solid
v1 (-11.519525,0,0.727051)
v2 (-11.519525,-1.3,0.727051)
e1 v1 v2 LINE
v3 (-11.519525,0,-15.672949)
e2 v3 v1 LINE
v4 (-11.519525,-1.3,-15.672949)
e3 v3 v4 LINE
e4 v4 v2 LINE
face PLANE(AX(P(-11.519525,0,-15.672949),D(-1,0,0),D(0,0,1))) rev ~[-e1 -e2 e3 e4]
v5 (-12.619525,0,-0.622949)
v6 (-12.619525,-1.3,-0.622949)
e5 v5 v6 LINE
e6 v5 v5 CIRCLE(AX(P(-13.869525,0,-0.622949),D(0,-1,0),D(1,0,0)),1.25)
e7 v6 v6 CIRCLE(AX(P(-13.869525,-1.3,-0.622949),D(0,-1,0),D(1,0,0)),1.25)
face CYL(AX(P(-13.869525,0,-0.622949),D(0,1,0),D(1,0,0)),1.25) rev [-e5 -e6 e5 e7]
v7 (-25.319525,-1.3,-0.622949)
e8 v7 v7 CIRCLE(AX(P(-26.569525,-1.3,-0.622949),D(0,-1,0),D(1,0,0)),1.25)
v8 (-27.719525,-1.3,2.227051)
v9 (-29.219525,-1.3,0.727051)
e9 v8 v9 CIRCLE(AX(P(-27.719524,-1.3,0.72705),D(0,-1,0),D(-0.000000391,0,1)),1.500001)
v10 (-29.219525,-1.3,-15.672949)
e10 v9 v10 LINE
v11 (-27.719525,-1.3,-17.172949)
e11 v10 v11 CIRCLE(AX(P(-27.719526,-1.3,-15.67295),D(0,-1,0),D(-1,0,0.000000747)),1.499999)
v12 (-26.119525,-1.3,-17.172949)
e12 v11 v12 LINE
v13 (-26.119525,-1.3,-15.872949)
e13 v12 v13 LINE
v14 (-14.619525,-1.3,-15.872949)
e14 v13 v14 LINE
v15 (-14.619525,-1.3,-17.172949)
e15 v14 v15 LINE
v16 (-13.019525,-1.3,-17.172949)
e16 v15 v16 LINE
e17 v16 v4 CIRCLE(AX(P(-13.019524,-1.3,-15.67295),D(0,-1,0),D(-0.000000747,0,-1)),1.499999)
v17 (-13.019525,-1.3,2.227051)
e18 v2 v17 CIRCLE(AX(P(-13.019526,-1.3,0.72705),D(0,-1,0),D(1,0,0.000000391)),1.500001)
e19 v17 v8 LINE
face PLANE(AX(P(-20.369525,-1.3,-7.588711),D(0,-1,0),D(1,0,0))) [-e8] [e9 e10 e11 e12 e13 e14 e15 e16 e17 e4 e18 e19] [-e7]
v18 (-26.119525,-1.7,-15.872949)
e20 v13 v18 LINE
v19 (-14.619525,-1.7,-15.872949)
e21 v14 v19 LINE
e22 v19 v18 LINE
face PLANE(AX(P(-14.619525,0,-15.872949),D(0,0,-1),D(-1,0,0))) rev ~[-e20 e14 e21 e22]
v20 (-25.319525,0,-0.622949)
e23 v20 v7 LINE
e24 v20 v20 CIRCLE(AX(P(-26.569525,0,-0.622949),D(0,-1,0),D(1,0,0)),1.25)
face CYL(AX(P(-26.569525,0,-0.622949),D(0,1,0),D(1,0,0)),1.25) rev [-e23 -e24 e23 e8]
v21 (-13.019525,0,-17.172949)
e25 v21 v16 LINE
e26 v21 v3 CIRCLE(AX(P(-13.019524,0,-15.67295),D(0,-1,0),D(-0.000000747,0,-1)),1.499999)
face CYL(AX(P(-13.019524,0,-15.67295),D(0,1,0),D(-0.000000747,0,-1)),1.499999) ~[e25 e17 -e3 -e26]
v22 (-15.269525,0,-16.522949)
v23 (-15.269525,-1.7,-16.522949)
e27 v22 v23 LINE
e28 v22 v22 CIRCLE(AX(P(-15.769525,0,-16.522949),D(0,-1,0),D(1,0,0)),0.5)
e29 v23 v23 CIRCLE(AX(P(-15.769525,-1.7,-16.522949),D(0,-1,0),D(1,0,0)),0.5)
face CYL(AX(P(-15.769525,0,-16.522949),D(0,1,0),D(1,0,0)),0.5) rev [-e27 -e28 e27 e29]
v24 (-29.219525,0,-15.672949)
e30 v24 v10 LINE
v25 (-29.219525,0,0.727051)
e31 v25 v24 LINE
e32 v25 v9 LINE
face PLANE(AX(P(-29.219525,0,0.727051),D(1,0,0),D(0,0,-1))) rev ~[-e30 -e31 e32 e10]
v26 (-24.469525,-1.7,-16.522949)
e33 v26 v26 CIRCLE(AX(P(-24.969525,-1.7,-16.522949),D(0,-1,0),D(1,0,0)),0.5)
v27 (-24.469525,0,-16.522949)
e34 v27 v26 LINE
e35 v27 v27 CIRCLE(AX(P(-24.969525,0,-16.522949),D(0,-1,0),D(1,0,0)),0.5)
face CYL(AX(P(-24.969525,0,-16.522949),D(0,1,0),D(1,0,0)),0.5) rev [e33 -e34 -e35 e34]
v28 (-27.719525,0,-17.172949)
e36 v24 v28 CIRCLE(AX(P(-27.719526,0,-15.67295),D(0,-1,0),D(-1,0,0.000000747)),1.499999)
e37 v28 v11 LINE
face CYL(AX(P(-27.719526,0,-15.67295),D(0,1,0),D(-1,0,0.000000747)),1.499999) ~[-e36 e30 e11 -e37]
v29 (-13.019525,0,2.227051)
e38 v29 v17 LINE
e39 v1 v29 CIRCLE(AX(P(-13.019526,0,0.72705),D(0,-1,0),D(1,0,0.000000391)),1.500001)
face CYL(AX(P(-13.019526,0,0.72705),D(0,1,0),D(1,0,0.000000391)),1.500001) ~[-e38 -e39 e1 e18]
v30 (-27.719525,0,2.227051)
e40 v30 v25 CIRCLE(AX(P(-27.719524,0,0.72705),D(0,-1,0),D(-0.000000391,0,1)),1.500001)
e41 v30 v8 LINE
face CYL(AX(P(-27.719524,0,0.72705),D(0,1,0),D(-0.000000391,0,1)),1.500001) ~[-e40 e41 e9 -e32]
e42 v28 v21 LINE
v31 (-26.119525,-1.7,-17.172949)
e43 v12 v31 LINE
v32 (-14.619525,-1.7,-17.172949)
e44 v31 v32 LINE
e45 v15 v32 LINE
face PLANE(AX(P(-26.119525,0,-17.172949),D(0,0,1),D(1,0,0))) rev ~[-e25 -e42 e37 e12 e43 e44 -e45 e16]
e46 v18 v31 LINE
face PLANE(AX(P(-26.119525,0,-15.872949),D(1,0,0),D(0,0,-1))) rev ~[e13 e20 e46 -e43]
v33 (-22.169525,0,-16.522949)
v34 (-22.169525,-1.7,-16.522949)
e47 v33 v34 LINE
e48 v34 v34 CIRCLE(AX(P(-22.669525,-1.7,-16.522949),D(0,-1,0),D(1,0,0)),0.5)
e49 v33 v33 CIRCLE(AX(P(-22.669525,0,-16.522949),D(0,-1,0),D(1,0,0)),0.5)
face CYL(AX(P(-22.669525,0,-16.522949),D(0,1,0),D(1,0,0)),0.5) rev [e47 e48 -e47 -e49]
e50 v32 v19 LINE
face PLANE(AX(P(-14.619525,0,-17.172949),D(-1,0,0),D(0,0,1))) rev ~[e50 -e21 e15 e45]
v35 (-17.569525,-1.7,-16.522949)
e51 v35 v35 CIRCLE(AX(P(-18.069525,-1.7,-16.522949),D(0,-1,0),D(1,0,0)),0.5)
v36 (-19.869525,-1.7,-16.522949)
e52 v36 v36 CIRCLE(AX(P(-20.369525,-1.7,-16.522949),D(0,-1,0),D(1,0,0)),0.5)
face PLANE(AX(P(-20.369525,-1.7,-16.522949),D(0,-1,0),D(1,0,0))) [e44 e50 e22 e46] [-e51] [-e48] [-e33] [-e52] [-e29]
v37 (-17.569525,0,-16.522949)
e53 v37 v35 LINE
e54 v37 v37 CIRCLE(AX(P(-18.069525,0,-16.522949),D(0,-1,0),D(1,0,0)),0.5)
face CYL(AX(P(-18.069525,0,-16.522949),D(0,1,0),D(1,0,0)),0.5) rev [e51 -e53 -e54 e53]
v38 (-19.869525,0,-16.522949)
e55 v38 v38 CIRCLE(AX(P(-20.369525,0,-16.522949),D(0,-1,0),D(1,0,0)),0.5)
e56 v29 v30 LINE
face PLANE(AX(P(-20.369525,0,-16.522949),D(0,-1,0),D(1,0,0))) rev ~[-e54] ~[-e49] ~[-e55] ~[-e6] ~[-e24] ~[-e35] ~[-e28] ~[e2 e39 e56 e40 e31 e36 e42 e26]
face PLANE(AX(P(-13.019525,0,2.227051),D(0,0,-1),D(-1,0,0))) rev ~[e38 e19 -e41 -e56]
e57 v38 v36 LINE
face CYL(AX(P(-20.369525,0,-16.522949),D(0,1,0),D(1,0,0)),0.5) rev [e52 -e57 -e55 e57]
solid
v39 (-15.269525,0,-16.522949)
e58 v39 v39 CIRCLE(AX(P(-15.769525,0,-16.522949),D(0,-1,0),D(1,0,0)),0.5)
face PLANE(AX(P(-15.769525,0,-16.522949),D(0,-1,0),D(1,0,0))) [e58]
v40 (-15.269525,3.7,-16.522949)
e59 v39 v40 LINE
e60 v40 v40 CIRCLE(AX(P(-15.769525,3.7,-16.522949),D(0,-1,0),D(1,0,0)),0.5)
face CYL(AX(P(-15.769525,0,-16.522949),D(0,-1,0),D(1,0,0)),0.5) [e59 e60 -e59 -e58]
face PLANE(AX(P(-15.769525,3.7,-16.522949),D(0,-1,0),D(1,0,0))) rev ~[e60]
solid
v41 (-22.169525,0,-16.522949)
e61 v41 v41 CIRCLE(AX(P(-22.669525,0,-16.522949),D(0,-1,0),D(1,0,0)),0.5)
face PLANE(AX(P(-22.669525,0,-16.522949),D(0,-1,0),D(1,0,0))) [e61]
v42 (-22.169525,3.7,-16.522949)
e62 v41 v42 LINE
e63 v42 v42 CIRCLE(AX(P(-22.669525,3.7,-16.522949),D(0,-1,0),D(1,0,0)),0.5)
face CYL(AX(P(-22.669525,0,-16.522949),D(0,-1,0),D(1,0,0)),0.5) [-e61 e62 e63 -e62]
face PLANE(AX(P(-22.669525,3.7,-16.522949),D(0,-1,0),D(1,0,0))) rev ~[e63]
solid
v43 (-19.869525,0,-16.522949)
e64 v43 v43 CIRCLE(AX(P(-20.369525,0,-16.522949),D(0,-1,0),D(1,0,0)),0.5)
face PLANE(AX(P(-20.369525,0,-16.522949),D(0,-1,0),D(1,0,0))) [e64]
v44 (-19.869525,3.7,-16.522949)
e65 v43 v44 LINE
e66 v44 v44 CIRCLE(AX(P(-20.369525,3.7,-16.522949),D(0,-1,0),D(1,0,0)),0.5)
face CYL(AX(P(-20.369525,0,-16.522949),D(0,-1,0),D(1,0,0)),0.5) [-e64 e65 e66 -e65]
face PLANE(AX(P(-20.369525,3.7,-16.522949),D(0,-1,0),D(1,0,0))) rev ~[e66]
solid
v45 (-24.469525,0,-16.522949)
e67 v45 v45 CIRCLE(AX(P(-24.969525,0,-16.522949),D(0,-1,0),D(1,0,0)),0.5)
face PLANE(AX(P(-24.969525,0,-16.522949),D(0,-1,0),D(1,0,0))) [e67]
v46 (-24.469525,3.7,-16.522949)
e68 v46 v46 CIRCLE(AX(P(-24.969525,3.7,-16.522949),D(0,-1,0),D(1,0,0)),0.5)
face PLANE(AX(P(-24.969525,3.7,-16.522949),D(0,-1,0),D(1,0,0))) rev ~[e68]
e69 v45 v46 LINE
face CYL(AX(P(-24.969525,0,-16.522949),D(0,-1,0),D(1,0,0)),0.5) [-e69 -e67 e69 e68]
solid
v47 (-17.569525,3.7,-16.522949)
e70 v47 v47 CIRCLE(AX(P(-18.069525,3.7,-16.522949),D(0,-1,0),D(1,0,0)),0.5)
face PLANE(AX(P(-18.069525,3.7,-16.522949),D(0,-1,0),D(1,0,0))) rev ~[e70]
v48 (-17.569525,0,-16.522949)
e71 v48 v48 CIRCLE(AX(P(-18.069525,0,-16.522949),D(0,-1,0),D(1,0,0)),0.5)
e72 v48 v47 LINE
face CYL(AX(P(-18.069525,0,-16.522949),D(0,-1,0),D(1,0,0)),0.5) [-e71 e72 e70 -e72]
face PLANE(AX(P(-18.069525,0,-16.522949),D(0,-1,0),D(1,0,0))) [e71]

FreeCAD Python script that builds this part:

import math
import FreeCAD as App
import Part
import Sketcher

V = App.Vector

doc = App.newDocument("Part")
params = doc.addObject("Spreadsheet::Sheet", "Params")
for row, (alias, value) in enumerate([
    ("sketch1_diameter", "2.5 mm"),
    ("sketch1_radius", "1.499999 mm"),
    ("sketch1_width", "1.6 mm"),
    ("sketch1_width2", "11.5 mm"),
    ("sketch1_height", "1.3 mm"),
    ("pad1_length", "1.3 mm"),
    ("sketch2_diameter", "1 mm"),
    ("sketch2_width", "11.5 mm"),
    ("sketch2_height", "1.3 mm"),
    ("pad2_length", "1.7 mm"),
    ("sketch3_diameter", "1 mm"),
    ("pad3_length", "3.7 mm"),
], start=1):
    params.set(f"A{row}", alias)
    params.set(f"B{row}", "=" + value)
    params.setAlias(f"B{row}", alias)

body = doc.addObject("PartDesign::Body", "Body")

# Sketch on XZ plane
sketch1 = doc.addObject("Sketcher::SketchObject", "Sketch")
body.addObject(sketch1)
sketch1.AttachmentSupport = (doc.XZ_Plane, [""])
sketch1.MapMode = "FlatFace"
sketch1.addGeometry([
    Part.ArcOfCircle(Part.Circle(V(-27.7, -15.7, 0), V(0, 0, 1), 1.5), math.radians(180), math.radians(270)),  # 0
    Part.LineSegment(V(-27.7, -17.2, 0), V(-26.1, -17.2, 0)),  # 1
    Part.LineSegment(V(-26.1, -17.2, 0), V(-26.1, -15.9, 0)),  # 2
    Part.LineSegment(V(-26.1, -15.9, 0), V(-14.6, -15.9, 0)),  # 3
    Part.LineSegment(V(-14.6, -15.9, 0), V(-14.6, -17.2, 0)),  # 4
    Part.LineSegment(V(-14.6, -17.2, 0), V(-13, -17.2, 0)),  # 5
    Part.ArcOfCircle(Part.Circle(V(-13, -15.7, 0), V(0, 0, 1), 1.5), math.radians(-90), math.radians(0)),  # 6
    Part.LineSegment(V(-11.5, -15.7, 0), V(-11.5, 0.7, 0)),  # 7
    Part.ArcOfCircle(Part.Circle(V(-13, 0.7, 0), V(0, 0, 1), 1.5), math.radians(0), math.radians(90)),  # 8
    Part.LineSegment(V(-13, 2.2, 0), V(-27.7, 2.2, 0)),  # 9
    Part.ArcOfCircle(Part.Circle(V(-27.7, 0.7, 0), V(0, 0, 1), 1.5), math.radians(90), math.radians(180)),  # 10
    Part.LineSegment(V(-29.2, 0.7, 0), V(-29.2, -15.7, 0)),  # 11
    Part.Circle(V(-26.6, -0.6, 0), V(0, 0, 1), 1.2),  # 12
    Part.Circle(V(-13.9, -0.6, 0), V(0, 0, 1), 1.2),  # 13
], False)
sketch1.addConstraint([
    Sketcher.Constraint("Tangent", 0, 2, 1, 1),
    Sketcher.Constraint("Coincident", 1, 2, 2, 1),
    Sketcher.Constraint("Coincident", 2, 2, 3, 1),
    Sketcher.Constraint("Coincident", 3, 2, 4, 1),
    Sketcher.Constraint("Coincident", 4, 2, 5, 1),
    Sketcher.Constraint("Tangent", 5, 2, 6, 1),
    Sketcher.Constraint("Tangent", 6, 2, 7, 1),
    Sketcher.Constraint("Tangent", 7, 2, 8, 1),
    Sketcher.Constraint("Tangent", 8, 2, 9, 1),
    Sketcher.Constraint("Tangent", 9, 2, 10, 1),
    Sketcher.Constraint("Tangent", 10, 2, 11, 1),
    Sketcher.Constraint("Tangent", 11, 2, 0, 1),
    Sketcher.Constraint("Horizontal", 1),
    Sketcher.Constraint("Vertical", 2),
    Sketcher.Constraint("Horizontal", 3),
    Sketcher.Constraint("Vertical", 4),
    Sketcher.Constraint("Horizontal", 5),
    Sketcher.Constraint("Vertical", 7),
    Sketcher.Constraint("Horizontal", 9),
    Sketcher.Constraint("Vertical", 11),
    Sketcher.Constraint("Equal", 0, 6),
    Sketcher.Constraint("Equal", 6, 8),
    Sketcher.Constraint("Equal", 8, 10),
    Sketcher.Constraint("Equal", 12, 13),
    Sketcher.Constraint("Horizontal", 0, 3, 6, 3),
    Sketcher.Constraint("Horizontal", 12, 3, 13, 3),
    Sketcher.Constraint("Equal", 1, 5),
    Sketcher.Constraint("Diameter", 12, 2.5),
    Sketcher.Constraint("Radius", 0, 1.499999),
    Sketcher.Constraint("DistanceX", 1, 1, 1, 2, 1.6),
    Sketcher.Constraint("DistanceX", 3, 1, 3, 2, 11.5),
    Sketcher.Constraint("DistanceY", 2, 1, 2, 2, 1.3),
    Sketcher.Constraint("DistanceY", 7, 1, 7, 2, 16.4),
    Sketcher.Constraint("DistanceX", 12, 3, 13, 3, 12.7),
    Sketcher.Constraint("DistanceX", 10, 3, 12, 3, 1.149999),
    Sketcher.Constraint("DistanceY", 12, 3, 10, 3, 1.349999),
    Sketcher.Constraint("DistanceY", 0, 3, -1, 1, 15.67295),
    Sketcher.Constraint("DistanceX", 0, 3, -1, 1, 27.719526),
])
sketch1.setExpression("Constraints[27]", "Params.sketch1_diameter")
sketch1.setExpression("Constraints[28]", "Params.sketch1_radius")
sketch1.setExpression("Constraints[29]", "Params.sketch1_width")
sketch1.setExpression("Constraints[30]", "Params.sketch1_width2")
sketch1.setExpression("Constraints[31]", "Params.sketch1_height")
pad1 = doc.addObject("PartDesign::Pad", "Pad")
body.addObject(pad1)
pad1.Profile = sketch1
pad1.setExpression("Length", "Params.pad1_length")

# Sketch on XZ plane
sketch2 = doc.addObject("Sketcher::SketchObject", "Sketch001")
body.addObject(sketch2)
sketch2.AttachmentSupport = (doc.XZ_Plane, [""])
sketch2.MapMode = "FlatFace"
sketch2.addGeometry([
    Part.LineSegment(V(-26.1, -15.9, 0), V(-26.1, -17.2, 0)),  # 0
    Part.LineSegment(V(-26.1, -17.2, 0), V(-14.6, -17.2, 0)),  # 1
    Part.LineSegment(V(-14.6, -17.2, 0), V(-14.6, -15.9, 0)),  # 2
    Part.LineSegment(V(-14.6, -15.9, 0), V(-26.1, -15.9, 0)),  # 3
    Part.Circle(V(-25, -16.5, 0), V(0, 0, 1), 0.5),  # 4
    Part.Circle(V(-22.7, -16.5, 0), V(0, 0, 1), 0.5),  # 5
    Part.Circle(V(-20.4, -16.5, 0), V(0, 0, 1), 0.5),  # 6
    Part.Circle(V(-18.1, -16.5, 0), V(0, 0, 1), 0.5),  # 7
    Part.Circle(V(-15.8, -16.5, 0), V(0, 0, 1), 0.5),  # 8
], False)
sketch2.addConstraint([
    Sketcher.Constraint("Coincident", 0, 2, 1, 1),
    Sketcher.Constraint("Coincident", 1, 2, 2, 1),
    Sketcher.Constraint("Coincident", 2, 2, 3, 1),
    Sketcher.Constraint("Coincident", 3, 2, 0, 1),
    Sketcher.Constraint("Vertical", 0),
    Sketcher.Constraint("Horizontal", 1),
    Sketcher.Constraint("Vertical", 2),
    Sketcher.Constraint("Horizontal", 3),
    Sketcher.Constraint("Equal", 4, 5),
    Sketcher.Constraint("Equal", 5, 6),
    Sketcher.Constraint("Equal", 6, 7),
    Sketcher.Constraint("Equal", 7, 8),
    Sketcher.Constraint("Horizontal", 4, 3, 5, 3),
    Sketcher.Constraint("Horizontal", 5, 3, 6, 3),
    Sketcher.Constraint("Horizontal", 6, 3, 7, 3),
    Sketcher.Constraint("Horizontal", 7, 3, 8, 3),
    Sketcher.Constraint("Diameter", 4, 1.0),
    Sketcher.Constraint("DistanceX", 1, 1, 1, 2, 11.5),
    Sketcher.Constraint("DistanceY", 0, 2, 0, 1, 1.3),
    Sketcher.Constraint("DistanceX", 4, 3, 5, 3, 2.3),
    Sketcher.Constraint("DistanceX", 5, 3, 6, 3, 2.3),
    Sketcher.Constraint("DistanceX", 6, 3, 7, 3, 2.3),
    Sketcher.Constraint("DistanceX", 7, 3, 8, 3, 2.3),
    Sketcher.Constraint("DistanceX", 0, 2, 4, 3, 1.15),
    Sketcher.Constraint("DistanceY", 0, 2, 4, 3, 0.65),
    Sketcher.Constraint("DistanceY", 4, 3, -1, 1, 16.522949),
    Sketcher.Constraint("DistanceX", 4, 3, -1, 1, 24.969525),
])
sketch2.setExpression("Constraints[16]", "Params.sketch2_diameter")
sketch2.setExpression("Constraints[17]", "Params.sketch2_width")
sketch2.setExpression("Constraints[18]", "Params.sketch2_height")
pad2 = doc.addObject("PartDesign::Pad", "Pad001")
body.addObject(pad2)
pad2.Profile = sketch2
pad2.setExpression("Length", "Params.pad2_length")
body2 = doc.addObject("PartDesign::Body", "Body001")
body2.AllowCompound = True

# Sketch on XZ plane
sketch3 = doc.addObject("Sketcher::SketchObject", "Sketch002")
body2.addObject(sketch3)
sketch3.AttachmentSupport = (doc.getObject("XZ_Plane001"), [""])
sketch3.MapMode = "FlatFace"
sketch3.addGeometry([
    Part.Circle(V(-25, -16.5, 0), V(0, 0, 1), 0.5),  # 0
    Part.Circle(V(-22.7, -16.5, 0), V(0, 0, 1), 0.5),  # 1
    Part.Circle(V(-20.4, -16.5, 0), V(0, 0, 1), 0.5),  # 2
    Part.Circle(V(-18.1, -16.5, 0), V(0, 0, 1), 0.5),  # 3
    Part.Circle(V(-15.8, -16.5, 0), V(0, 0, 1), 0.5),  # 4
], False)
sketch3.addConstraint([
    Sketcher.Constraint("Equal", 0, 1),
    Sketcher.Constraint("Equal", 1, 2),
    Sketcher.Constraint("Equal", 2, 3),
    Sketcher.Constraint("Equal", 3, 4),
    Sketcher.Constraint("Horizontal", 0, 3, 1, 3),
    Sketcher.Constraint("Horizontal", 1, 3, 2, 3),
    Sketcher.Constraint("Horizontal", 2, 3, 3, 3),
    Sketcher.Constraint("Horizontal", 3, 3, 4, 3),
    Sketcher.Constraint("Diameter", 0, 1.0),
    Sketcher.Constraint("DistanceX", 0, 3, 1, 3, 2.3),
    Sketcher.Constraint("DistanceX", 1, 3, 2, 3, 2.3),
    Sketcher.Constraint("DistanceX", 2, 3, 3, 3, 2.3),
    Sketcher.Constraint("DistanceX", 3, 3, 4, 3, 2.3),
    Sketcher.Constraint("DistanceY", 0, 3, -1, 1, 16.522949),
    Sketcher.Constraint("DistanceX", 0, 3, -1, 1, 24.969525),
])
sketch3.setExpression("Constraints[8]", "Params.sketch3_diameter")
pad3 = doc.addObject("PartDesign::Pad", "Pad002")
body2.addObject(pad3)
pad3.Profile = sketch3
pad3.setExpression("Length", "Params.pad3_length")
pad3.Reversed = True

doc.recompute()
